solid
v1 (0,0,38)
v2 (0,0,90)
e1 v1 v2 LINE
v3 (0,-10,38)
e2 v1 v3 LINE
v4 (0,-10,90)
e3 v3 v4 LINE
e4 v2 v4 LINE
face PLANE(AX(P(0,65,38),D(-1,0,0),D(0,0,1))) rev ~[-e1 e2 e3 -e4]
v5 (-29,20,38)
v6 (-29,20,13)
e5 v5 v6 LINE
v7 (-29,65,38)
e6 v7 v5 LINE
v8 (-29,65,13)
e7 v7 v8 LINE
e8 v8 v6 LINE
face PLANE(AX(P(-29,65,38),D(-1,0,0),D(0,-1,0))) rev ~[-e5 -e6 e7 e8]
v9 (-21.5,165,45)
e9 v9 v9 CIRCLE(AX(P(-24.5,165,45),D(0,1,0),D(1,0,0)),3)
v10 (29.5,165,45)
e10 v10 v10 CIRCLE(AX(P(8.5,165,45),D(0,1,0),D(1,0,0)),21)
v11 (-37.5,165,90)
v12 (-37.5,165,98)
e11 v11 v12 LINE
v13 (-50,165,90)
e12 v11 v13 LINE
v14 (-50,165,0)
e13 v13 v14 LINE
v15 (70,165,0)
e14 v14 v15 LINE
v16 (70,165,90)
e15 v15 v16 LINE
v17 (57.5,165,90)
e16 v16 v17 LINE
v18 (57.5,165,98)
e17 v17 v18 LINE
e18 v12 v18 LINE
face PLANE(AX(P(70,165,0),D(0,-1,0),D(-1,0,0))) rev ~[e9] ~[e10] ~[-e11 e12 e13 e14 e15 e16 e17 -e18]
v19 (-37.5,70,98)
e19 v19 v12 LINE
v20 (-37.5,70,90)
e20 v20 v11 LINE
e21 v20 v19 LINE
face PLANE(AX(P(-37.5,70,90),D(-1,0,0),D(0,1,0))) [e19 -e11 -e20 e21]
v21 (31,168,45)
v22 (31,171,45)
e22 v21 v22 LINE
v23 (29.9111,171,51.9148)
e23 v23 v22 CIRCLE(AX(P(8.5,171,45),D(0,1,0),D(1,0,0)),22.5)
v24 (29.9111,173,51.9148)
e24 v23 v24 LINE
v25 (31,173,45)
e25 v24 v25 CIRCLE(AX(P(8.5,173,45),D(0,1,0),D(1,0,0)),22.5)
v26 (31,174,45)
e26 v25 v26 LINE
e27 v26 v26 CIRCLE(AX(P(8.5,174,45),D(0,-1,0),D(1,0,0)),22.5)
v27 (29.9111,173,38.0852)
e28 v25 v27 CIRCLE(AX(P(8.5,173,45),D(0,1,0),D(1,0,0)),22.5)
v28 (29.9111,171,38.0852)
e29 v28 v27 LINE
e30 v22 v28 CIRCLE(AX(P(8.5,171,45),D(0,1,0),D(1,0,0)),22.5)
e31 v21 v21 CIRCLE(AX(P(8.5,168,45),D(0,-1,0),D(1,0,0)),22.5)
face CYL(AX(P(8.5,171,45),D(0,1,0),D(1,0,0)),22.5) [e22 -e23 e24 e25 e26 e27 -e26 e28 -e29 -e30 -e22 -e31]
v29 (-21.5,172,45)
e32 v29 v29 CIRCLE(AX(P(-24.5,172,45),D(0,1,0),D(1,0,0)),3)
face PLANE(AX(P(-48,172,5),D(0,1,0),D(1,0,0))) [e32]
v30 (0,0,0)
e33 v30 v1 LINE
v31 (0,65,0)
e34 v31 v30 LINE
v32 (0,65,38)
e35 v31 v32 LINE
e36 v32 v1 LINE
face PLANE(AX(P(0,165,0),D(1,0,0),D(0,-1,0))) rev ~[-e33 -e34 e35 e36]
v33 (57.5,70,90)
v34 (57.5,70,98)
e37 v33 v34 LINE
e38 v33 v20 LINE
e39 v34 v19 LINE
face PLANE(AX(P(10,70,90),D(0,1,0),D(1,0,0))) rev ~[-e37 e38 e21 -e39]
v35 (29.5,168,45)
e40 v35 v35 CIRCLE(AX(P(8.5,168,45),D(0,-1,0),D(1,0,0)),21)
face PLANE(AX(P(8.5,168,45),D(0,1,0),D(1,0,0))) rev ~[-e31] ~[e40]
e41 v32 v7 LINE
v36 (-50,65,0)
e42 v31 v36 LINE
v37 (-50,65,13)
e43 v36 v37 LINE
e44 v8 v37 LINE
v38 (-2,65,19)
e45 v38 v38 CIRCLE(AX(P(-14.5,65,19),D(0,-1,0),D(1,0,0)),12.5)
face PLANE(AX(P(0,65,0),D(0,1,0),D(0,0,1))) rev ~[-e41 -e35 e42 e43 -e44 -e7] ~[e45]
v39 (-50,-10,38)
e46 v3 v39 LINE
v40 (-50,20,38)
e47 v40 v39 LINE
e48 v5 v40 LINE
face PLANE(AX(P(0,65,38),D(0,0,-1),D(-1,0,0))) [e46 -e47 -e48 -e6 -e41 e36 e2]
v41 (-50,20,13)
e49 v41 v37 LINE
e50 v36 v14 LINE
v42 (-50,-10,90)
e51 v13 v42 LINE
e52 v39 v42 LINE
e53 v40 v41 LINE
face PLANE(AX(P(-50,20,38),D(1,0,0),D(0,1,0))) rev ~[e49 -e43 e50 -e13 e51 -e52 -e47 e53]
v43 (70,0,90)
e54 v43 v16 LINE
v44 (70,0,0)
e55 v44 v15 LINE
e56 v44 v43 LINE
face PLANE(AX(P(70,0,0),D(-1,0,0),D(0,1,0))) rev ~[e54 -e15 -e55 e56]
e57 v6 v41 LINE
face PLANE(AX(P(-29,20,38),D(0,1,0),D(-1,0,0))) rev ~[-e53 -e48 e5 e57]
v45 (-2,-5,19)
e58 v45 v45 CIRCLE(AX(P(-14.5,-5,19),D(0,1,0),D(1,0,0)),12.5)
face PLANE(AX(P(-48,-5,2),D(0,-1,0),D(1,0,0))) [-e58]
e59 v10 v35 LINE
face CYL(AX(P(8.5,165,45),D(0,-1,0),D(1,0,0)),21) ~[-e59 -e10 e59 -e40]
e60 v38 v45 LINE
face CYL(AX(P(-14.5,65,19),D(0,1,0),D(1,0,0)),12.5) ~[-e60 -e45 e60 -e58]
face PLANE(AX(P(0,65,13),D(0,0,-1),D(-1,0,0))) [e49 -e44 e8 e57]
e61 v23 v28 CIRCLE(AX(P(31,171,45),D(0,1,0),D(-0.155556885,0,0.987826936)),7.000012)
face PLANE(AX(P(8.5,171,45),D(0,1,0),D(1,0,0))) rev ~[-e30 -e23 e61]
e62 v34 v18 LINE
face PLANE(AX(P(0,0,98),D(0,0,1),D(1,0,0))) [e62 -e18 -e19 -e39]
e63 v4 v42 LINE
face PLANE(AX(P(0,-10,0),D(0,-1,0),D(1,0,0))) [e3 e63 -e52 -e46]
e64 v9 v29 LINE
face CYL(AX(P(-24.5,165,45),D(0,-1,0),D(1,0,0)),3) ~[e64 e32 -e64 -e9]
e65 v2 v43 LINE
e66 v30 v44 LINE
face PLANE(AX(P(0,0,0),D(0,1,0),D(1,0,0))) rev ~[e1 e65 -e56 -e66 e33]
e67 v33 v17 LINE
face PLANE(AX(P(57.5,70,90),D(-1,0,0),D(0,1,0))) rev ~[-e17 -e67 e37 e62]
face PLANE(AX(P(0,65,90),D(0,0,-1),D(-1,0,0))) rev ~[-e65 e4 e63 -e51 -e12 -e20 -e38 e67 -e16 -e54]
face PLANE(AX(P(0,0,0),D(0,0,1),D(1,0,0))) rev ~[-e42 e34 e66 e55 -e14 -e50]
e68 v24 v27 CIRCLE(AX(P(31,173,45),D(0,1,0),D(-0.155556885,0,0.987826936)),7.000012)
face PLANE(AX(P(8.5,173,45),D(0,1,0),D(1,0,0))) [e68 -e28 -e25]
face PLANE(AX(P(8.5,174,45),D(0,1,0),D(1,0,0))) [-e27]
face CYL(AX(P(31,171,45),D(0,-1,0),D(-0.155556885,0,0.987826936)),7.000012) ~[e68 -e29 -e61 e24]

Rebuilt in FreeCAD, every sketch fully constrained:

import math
import FreeCAD as App
import Part
import Sketcher
from FreeCAD import Vector

doc = App.newDocument("Part")
body = doc.addObject("PartDesign::Body", "Body")

# Sketch on XY plane
sketch1 = body.newObject("Sketcher::SketchObject", "Sketch")
sketch1.AttachmentSupport = (doc.getObject("XY_Plane"), [""])
sketch1.MapMode = "FlatFace"
sketch1.addGeometry([
    Part.LineSegment(Vector(0, 165, 0), Vector(0, 0, 0)),
    Part.LineSegment(Vector(0, 0, 0), Vector(70, 0, 0)),
    Part.LineSegment(Vector(70, 0, 0), Vector(70, 165, 0)),
    Part.LineSegment(Vector(70, 165, 0), Vector(0, 165, 0)),
], False)
sketch1.addConstraint([
    Sketcher.Constraint("Coincident", 0, 2, 1, 1),
    Sketcher.Constraint("Coincident", 1, 2, 2, 1),
    Sketcher.Constraint("Coincident", 2, 2, 3, 1),
    Sketcher.Constraint("Coincident", 3, 2, 0, 1),
    Sketcher.Constraint("Vertical", 0),
    Sketcher.Constraint("Horizontal", 1),
    Sketcher.Constraint("Vertical", 2),
    Sketcher.Constraint("Horizontal", 3),
    Sketcher.Constraint("Coincident", 0, 2, -1, 1),
    Sketcher.Constraint("DistanceX", 1, 1, 1, 2, 70.0),
    Sketcher.Constraint("DistanceY", 0, 2, 0, 1, 165.0),
])
pad1 = body.newObject("PartDesign::Pad", "Pad")
pad1.Profile = sketch1
pad1.Length = 90

# Sketch on YZ plane
sketch2 = body.newObject("Sketcher::SketchObject", "Sketch001")
sketch2.AttachmentSupport = (doc.getObject("YZ_Plane"), [""])
sketch2.MapMode = "FlatFace"
sketch2.addGeometry([
    Part.LineSegment(Vector(65, 0, 0), Vector(65, 90, 0)),
    Part.LineSegment(Vector(65, 90, 0), Vector(165, 90, 0)),
    Part.LineSegment(Vector(165, 90, 0), Vector(165, 0, 0)),
    Part.LineSegment(Vector(165, 0, 0), Vector(65, 0, 0)),
], False)
sketch2.addConstraint([
    Sketcher.Constraint("Coincident", 0, 2, 1, 1),
    Sketcher.Constraint("Coincident", 1, 2, 2, 1),
    Sketcher.Constraint("Coincident", 2, 2, 3, 1),
    Sketcher.Constraint("Coincident", 3, 2, 0, 1),
    Sketcher.Constraint("Vertical", 0),
    Sketcher.Constraint("Horizontal", 1),
    Sketcher.Constraint("Vertical", 2),
    Sketcher.Constraint("Horizontal", 3),
    Sketcher.Constraint("PointOnObject", 2, 2, -1),
    Sketcher.Constraint("DistanceX", 1, 1, 1, 2, 100.0),
    Sketcher.Constraint("DistanceY", 0, 1, 0, 2, 90.0),
    Sketcher.Constraint("DistanceX", -1, 1, 0, 2, 65.0),
])
pad2 = body.newObject("PartDesign::Pad", "Pad001")
pad2.Profile = sketch2
pad2.Length = 50
pad2.Reversed = True

# Sketch on XZ plane
sketch3 = body.newObject("Sketcher::SketchObject", "Sketch002")
sketch3.AttachmentSupport = (doc.getObject("XZ_Plane"), [""])
sketch3.MapMode = "FlatFace"
sketch3.AttachmentOffset = App.Placement(Vector(0, 0, -65), App.Rotation())
sketch3.addGeometry([
    Part.LineSegment(Vector(0, 38, 0), Vector(0, 90, 0)),
    Part.LineSegment(Vector(0, 90, 0), Vector(-50, 90, 0)),
    Part.LineSegment(Vector(-50, 90, 0), Vector(-50, 38, 0)),
    Part.LineSegment(Vector(-50, 38, 0), Vector(0, 38, 0)),
], False)
sketch3.addConstraint([
    Sketcher.Constraint("Coincident", 0, 2, 1, 1),
    Sketcher.Constraint("Coincident", 1, 2, 2, 1),
    Sketcher.Constraint("Coincident", 2, 2, 3, 1),
    Sketcher.Constraint("Coincident", 3, 2, 0, 1),
    Sketcher.Constraint("Vertical", 0),
    Sketcher.Constraint("Horizontal", 1),
    Sketcher.Constraint("Vertical", 2),
    Sketcher.Constraint("Horizontal", 3),
    Sketcher.Constraint("PointOnObject", 0, 2, -2),
    Sketcher.Constraint("DistanceY", 0, 1, 0, 2, 52.0),
    Sketcher.Constraint("DistanceX", 1, 2, 1, 1, 50.0),
    Sketcher.Constraint("DistanceY", -1, 1, 0, 2, 90.0),
])
pad3 = body.newObject("PartDesign::Pad", "Pad002")
pad3.Profile = sketch3
pad3.Length = 75

# Sketch on XY plane
sketch4 = body.newObject("Sketcher::SketchObject", "Sketch003")
sketch4.AttachmentSupport = (doc.getObject("XY_Plane"), [""])
sketch4.MapMode = "FlatFace"
sketch4.AttachmentOffset = App.Placement(Vector(0, 0, 38), App.Rotation())
sketch4.addGeometry([
    Part.LineSegment(Vector(-50, 65, 0), Vector(-29, 65, 0)),
    Part.LineSegment(Vector(-29, 65, 0), Vector(-29, 20, 0)),
    Part.LineSegment(Vector(-29, 20, 0), Vector(-50, 20, 0)),
    Part.LineSegment(Vector(-50, 20, 0), Vector(-50, 65, 0)),
], False)
sketch4.addConstraint([
    Sketcher.Constraint("Coincident", 0, 2, 1, 1),
    Sketcher.Constraint("Coincident", 1, 2, 2, 1),
    Sketcher.Constraint("Coincident", 2, 2, 3, 1),
    Sketcher.Constraint("Coincident", 3, 2, 0, 1),
    Sketcher.Constraint("Horizontal", 0),
    Sketcher.Constraint("Vertical", 1),
    Sketcher.Constraint("Horizontal", 2),
    Sketcher.Constraint("Vertical", 3),
    Sketcher.Constraint("DistanceX", 0, 1, 0, 2, 21.0),
    Sketcher.Constraint("DistanceY", 1, 2, 1, 1, 45.0),
    Sketcher.Constraint("DistanceX", 0, 2, -1, 1, 29.0),
    Sketcher.Constraint("DistanceY", -1, 1, 0, 2, 65.0),
])
pad4 = body.newObject("PartDesign::Pad", "Pad003")
pad4.Profile = sketch4
pad4.Length = 25
pad4.Reversed = True

# Sketch on XY plane
sketch5 = body.newObject("Sketcher::SketchObject", "Sketch004")
sketch5.AttachmentSupport = (doc.getObject("XY_Plane"), [""])
sketch5.MapMode = "FlatFace"
sketch5.AttachmentOffset = App.Placement(Vector(0, 0, 90), App.Rotation())
sketch5.addGeometry([
    Part.LineSegment(Vector(58, 70, 0), Vector(58, 165, 0)),
    Part.LineSegment(Vector(58, 165, 0), Vector(-38, 165, 0)),
    Part.LineSegment(Vector(-38, 165, 0), Vector(-38, 70, 0)),
    Part.LineSegment(Vector(-38, 70, 0), Vector(58, 70, 0)),
], False)
sketch5.addConstraint([
    Sketcher.Constraint("Coincident", 0, 2, 1, 1),
    Sketcher.Constraint("Coincident", 1, 2, 2, 1),
    Sketcher.Constraint("Coincident", 2, 2, 3, 1),
    Sketcher.Constraint("Coincident", 3, 2, 0, 1),
    Sketcher.Constraint("Vertical", 0),
    Sketcher.Constraint("Horizontal", 1),
    Sketcher.Constraint("Vertical", 2),
    Sketcher.Constraint("Horizontal", 3),
    Sketcher.Constraint("Equal", 3, 0),
    Sketcher.Constraint("DistanceX", 1, 2, 1, 1, 95.0),
    Sketcher.Constraint("DistanceY", -1, 1, 0, 2, 165.0),
    Sketcher.Constraint("DistanceX", -1, 1, 0, 2, 57.5),
])
pad5 = body.newObject("PartDesign::Pad", "Pad004")
pad5.Profile = sketch5
pad5.Length = 8

# Sketch on XZ plane
sketch6 = body.newObject("Sketcher::SketchObject", "Sketch005")
sketch6.AttachmentSupport = (doc.getObject("XZ_Plane"), [""])
sketch6.MapMode = "FlatFace"
sketch6.AttachmentOffset = App.Placement(Vector(0, 0, -65), App.Rotation())
sketch6.addGeometry(Part.Circle(Vector(-14, 19, 0), Vector(0, 0, 1), 12), False)
sketch6.addConstraint([
    Sketcher.Constraint("Diameter", 0, 25.0),
    Sketcher.Constraint("DistanceY", -1, 1, 0, 3, 19.0),
    Sketcher.Constraint("DistanceX", 0, 3, -1, 1, 14.5),
])
pad6 = body.newObject("PartDesign::Pad", "Pad005")
pad6.Profile = sketch6
pad6.Length = 70

# Sketch on XZ plane
sketch7 = body.newObject("Sketcher::SketchObject", "Sketch006")
sketch7.AttachmentSupport = (doc.getObject("XZ_Plane"), [""])
sketch7.MapMode = "FlatFace"
sketch7.AttachmentOffset = App.Placement(Vector(0, 0, -165), App.Rotation())
sketch7.addGeometry(Part.Circle(Vector(8, 45, 0), Vector(0, 0, 1), 21), False)
sketch7.addConstraint([
    Sketcher.Constraint("Diameter", 0, 42.0),
    Sketcher.Constraint("DistanceY", -1, 1, 0, 3, 45.0),
    Sketcher.Constraint("DistanceX", -1, 1, 0, 3, 8.5),
])
pad7 = body.newObject("PartDesign::Pad", "Pad006")
pad7.Profile = sketch7
pad7.Length = 6
pad7.Reversed = True

# Sketch on XZ plane
sketch8 = body.newObject("Sketcher::SketchObject", "Sketch007")
sketch8.AttachmentSupport = (doc.getObject("XZ_Plane"), [""])
sketch8.MapMode = "FlatFace"
sketch8.AttachmentOffset = App.Placement(Vector(0, 0, -165), App.Rotation())
sketch8.addGeometry(Part.Circle(Vector(-24.5, 45, 0), Vector(0, 0, 1), 3), False)
sketch8.addConstraint([
    Sketcher.Constraint("Diameter", 0, 6.0),
    Sketcher.Constraint("DistanceY", -1, 1, 0, 3, 45.0),
    Sketcher.Constraint("DistanceX", 0, 3, -1, 1, 24.5),
])
pad8 = body.newObject("PartDesign::Pad", "Pad007")
pad8.Profile = sketch8
pad8.Length = 7
pad8.Reversed = True

# Sketch on XZ plane
sketch9 = body.newObject("Sketcher::SketchObject", "Sketch008")
sketch9.AttachmentSupport = (doc.getObject("XZ_Plane"), [""])
sketch9.MapMode = "FlatFace"
sketch9.AttachmentOffset = App.Placement(Vector(0, 0, -171), App.Rotation())
sketch9.addGeometry(Part.Circle(Vector(8, 45, 0), Vector(0, 0, 1), 22), False)
sketch9.addConstraint([
    Sketcher.Constraint("Diameter", 0, 45.0),
    Sketcher.Constraint("DistanceY", -1, 1, 0, 3, 45.0),
    Sketcher.Constraint("DistanceX", -1, 1, 0, 3, 8.5),
])
pad9 = body.newObject("PartDesign::Pad", "Pad008")
pad9.Profile = sketch9
pad9.Length = 6
pad9.Midplane = True

# Sketch on XZ plane
sketch10 = body.newObject("Sketcher::SketchObject", "Sketch009")
sketch10.AttachmentSupport = (doc.getObject("XZ_Plane"), [""])
sketch10.MapMode = "FlatFace"
sketch10.AttachmentOffset = App.Placement(Vector(0, 0, -171), App.Rotation())
sketch10.addGeometry([
    Part.ArcOfCircle(Part.Circle(Vector(8, 45, 0), Vector(0, 0, 1), 22), math.radians(-18), math.radians(18)),
    Part.ArcOfCircle(Part.Circle(Vector(31, 45, 0), Vector(0, 0, 1), 7), math.radians(-99), math.radians(99)),
], False)
sketch10.addConstraint([
    Sketcher.Constraint("Coincident", 0, 1, 1, 1),
    Sketcher.Constraint("Coincident", 1, 2, 0, 2),
    Sketcher.Constraint("Horizontal", 0, 3, 1, 3),
    Sketcher.Constraint("Radius", 1, 7.0),
    Sketcher.Constraint("Radius", 0, 22.5),
    Sketcher.Constraint("DistanceY", -1, 1, 0, 3, 45.0),
    Sketcher.Constraint("DistanceX", -1, 1, 1, 3, 31.0),
    Sketcher.Constraint("DistanceX", -1, 1, 0, 3, 8.5),
])
pad10 = body.newObject("PartDesign::Pad", "Pad009")
pad10.Profile = sketch10
pad10.Length = 2
pad10.Reversed = True

doc.recompute()
